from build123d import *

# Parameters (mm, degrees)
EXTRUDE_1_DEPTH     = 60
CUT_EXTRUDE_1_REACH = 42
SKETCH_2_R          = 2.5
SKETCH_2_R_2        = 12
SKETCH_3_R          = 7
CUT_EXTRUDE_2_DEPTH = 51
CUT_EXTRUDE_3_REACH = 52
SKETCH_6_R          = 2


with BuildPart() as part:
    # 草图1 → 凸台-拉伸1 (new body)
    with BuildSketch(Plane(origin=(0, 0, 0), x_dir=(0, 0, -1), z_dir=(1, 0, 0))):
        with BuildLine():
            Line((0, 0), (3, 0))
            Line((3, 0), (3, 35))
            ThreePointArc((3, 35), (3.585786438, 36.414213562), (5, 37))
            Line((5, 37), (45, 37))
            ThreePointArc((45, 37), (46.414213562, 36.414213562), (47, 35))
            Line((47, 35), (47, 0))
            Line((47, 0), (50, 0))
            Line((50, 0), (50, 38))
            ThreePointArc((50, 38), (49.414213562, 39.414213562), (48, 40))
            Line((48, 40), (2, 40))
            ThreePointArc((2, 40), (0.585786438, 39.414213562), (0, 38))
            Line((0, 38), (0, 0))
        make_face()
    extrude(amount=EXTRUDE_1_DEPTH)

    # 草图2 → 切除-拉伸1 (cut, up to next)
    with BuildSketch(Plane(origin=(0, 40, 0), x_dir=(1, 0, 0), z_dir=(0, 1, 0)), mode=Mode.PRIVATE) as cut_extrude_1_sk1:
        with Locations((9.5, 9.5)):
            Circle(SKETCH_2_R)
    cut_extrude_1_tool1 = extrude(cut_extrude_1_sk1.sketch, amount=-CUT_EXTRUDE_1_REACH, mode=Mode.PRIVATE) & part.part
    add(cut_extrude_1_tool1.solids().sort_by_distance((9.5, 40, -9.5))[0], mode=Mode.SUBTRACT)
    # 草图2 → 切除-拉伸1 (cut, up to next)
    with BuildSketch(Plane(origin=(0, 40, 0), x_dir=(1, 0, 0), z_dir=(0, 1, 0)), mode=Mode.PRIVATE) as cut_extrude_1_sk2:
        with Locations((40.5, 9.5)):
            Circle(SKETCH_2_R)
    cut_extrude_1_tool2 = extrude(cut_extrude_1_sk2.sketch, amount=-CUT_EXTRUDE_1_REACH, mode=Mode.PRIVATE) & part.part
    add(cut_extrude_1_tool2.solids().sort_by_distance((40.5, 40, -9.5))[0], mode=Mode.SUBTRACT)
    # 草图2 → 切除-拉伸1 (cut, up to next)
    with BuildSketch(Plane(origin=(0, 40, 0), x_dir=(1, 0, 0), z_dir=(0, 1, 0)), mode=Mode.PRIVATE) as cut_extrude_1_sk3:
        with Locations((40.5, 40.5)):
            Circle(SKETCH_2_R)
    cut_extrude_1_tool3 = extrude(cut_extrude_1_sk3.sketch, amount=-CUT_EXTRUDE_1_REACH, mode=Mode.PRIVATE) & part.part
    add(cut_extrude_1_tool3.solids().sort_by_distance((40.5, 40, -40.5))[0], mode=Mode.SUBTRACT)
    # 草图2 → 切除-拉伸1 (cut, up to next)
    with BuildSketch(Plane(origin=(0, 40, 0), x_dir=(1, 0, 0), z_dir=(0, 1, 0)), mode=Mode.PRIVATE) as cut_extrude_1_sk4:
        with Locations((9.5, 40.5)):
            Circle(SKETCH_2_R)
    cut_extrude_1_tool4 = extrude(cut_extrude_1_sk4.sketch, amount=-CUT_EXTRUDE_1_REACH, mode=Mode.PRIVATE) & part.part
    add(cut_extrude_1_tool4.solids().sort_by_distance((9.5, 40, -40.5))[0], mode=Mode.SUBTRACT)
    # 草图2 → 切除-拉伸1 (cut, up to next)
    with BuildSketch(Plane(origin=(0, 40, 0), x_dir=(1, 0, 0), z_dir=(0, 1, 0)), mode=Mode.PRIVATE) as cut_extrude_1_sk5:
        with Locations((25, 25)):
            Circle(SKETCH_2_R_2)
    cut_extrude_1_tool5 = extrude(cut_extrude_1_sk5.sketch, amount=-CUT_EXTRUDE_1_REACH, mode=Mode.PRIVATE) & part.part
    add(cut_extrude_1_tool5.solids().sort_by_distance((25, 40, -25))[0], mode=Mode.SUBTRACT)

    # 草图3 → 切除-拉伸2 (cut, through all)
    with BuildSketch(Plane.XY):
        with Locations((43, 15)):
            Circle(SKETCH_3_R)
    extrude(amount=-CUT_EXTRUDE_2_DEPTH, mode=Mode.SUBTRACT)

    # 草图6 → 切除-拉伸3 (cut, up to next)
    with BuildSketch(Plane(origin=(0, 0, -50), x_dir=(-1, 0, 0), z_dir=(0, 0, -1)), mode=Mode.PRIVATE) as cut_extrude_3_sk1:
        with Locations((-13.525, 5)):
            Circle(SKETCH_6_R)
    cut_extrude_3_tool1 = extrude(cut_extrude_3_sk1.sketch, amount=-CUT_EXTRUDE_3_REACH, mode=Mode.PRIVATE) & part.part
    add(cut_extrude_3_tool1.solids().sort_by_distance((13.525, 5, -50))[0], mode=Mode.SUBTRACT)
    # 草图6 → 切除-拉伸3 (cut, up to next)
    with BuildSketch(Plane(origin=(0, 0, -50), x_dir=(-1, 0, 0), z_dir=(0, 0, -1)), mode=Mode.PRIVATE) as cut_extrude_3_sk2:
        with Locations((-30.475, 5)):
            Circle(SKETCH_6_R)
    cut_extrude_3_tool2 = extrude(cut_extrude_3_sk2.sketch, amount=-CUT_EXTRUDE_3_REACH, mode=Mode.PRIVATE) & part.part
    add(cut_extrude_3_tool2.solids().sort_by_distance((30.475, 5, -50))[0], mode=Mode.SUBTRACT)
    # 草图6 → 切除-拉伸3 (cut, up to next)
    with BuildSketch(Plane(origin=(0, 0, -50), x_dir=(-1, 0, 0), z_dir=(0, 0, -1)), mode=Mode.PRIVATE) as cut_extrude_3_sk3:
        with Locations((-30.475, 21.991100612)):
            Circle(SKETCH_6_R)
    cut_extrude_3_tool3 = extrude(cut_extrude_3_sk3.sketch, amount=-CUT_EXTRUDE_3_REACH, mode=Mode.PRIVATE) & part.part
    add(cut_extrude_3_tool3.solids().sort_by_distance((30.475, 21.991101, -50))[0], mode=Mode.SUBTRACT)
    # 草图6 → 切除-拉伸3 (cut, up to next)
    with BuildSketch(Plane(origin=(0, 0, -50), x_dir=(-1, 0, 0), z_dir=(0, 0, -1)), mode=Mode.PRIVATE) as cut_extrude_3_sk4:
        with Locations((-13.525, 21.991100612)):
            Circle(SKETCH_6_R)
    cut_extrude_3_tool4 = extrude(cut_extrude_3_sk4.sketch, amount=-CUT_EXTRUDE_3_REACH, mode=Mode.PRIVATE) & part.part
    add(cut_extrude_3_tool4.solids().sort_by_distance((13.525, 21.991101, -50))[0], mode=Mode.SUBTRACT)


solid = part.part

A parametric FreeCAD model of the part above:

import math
import FreeCAD as App
import Part
import Sketcher

V = App.Vector
Q = App.Units.Quantity

doc = App.newDocument("Part")
body = doc.addObject("PartDesign::Body", "Body")

sketch1 = body.newObject("Sketcher::SketchObject", "Sketch")
sketch1.AttachmentSupport = (doc.getObject("YZ_Plane"), [""])
sketch1.MapMode = "FlatFace"
sketch1.addGeometry([
    Part.LineSegment(V(0, 0, 0), V(0, -3, 0)),
    Part.LineSegment(V(0, -3, 0), V(35, -3, 0)),
    Part.ArcOfCircle(Part.Circle(V(35, -5, 0), V(0, 0, 1), 2), math.radians(0), math.radians(90)),
    Part.LineSegment(V(37, -5, 0), V(37, -45, 0)),
    Part.ArcOfCircle(Part.Circle(V(35, -45, 0), V(0, 0, 1), 2), math.radians(-90), math.radians(0)),
    Part.LineSegment(V(35, -47, 0), V(0, -47, 0)),
    Part.LineSegment(V(0, -47, 0), V(0, -50, 0)),
    Part.LineSegment(V(0, -50, 0), V(38, -50, 0)),
    Part.ArcOfCircle(Part.Circle(V(38, -48, 0), V(0, 0, 1), 2), math.radians(-90), math.radians(0)),
    Part.LineSegment(V(40, -48, 0), V(40, -2, 0)),
    Part.ArcOfCircle(Part.Circle(V(38, -2, 0), V(0, 0, 1), 2), math.radians(0), math.radians(90)),
    Part.LineSegment(V(38, 0, 0), V(0, 0, 0)),
], False)
sketch1.addConstraint([
    Sketcher.Constraint("Coincident", 0, 2, 1, 1),
    Sketcher.Constraint("Tangent", 1, 2, 2, 2),
    Sketcher.Constraint("Tangent", 2, 1, 3, 1),
    Sketcher.Constraint("Tangent", 3, 2, 4, 2),
    Sketcher.Constraint("Tangent", 4, 1, 5, 1),
    Sketcher.Constraint("Coincident", 5, 2, 6, 1),
    Sketcher.Constraint("Coincident", 6, 2, 7, 1),
    Sketcher.Constraint("Tangent", 7, 2, 8, 1),
    Sketcher.Constraint("Tangent", 8, 2, 9, 1),
    Sketcher.Constraint("Tangent", 9, 2, 10, 1),
    Sketcher.Constraint("Tangent", 10, 2, 11, 1),
    Sketcher.Constraint("Coincident", 11, 2, 0, 1),
    Sketcher.Constraint("Vertical", 0),
    Sketcher.Constraint("Horizontal", 1),
    Sketcher.Constraint("Vertical", 3),
    Sketcher.Constraint("Horizontal", 5),
    Sketcher.Constraint("Vertical", 6),
    Sketcher.Constraint("Horizontal", 7),
    Sketcher.Constraint("Vertical", 9),
    Sketcher.Constraint("Horizontal", 11),
    Sketcher.Constraint("Coincident", 11, 2, -1, 1),
    Sketcher.Constraint("Equal", 2, 4),
    Sketcher.Constraint("Equal", 4, 8),
    Sketcher.Constraint("Equal", 8, 10),
    Sketcher.Constraint("PointOnObject", 5, 2, -2),
    Sketcher.Constraint("Equal", 0, 6),
    Sketcher.Constraint("Radius", 2, Q("2 mm")),
    Sketcher.Constraint("DistanceX", 1, 1, 1, 2, Q("35 mm")),
    Sketcher.Constraint("DistanceX", 7, 1, 7, 2, Q("38 mm")),
    Sketcher.Constraint("DistanceY", 0, 2, 0, 1, Q("3 mm")),
    Sketcher.Constraint("DistanceY", 3, 2, 3, 1, Q("40 mm")),
])
pad1 = body.newObject("PartDesign::Pad", "Pad")
pad1.Profile = sketch1
pad1.Length = 60

sketch2 = body.newObject("Sketcher::SketchObject", "Sketch001")
sketch2.AttachmentSupport = (doc.getObject("XZ_Plane"), [""])
sketch2.MapMode = "FlatFace"
sketch2.AttachmentOffset = App.Placement(V(0, 0, -40), App.Rotation())
sketch2.addGeometry(Part.Circle(V(9.5, -9.5, 0), V(0, 0, 1), 2.5), False)
sketch2.addConstraint([
    Sketcher.Constraint("Diameter", 0, Q("5 mm")),
    Sketcher.Constraint("DistanceX", -1, 1, 0, 3, Q("9.5 mm")),
    Sketcher.Constraint("DistanceY", 0, 3, -1, 1, Q("9.5 mm")),
])
pocket1 = body.newObject("PartDesign::Pocket", "Pocket")
pocket1.Profile = sketch2
pocket1.Type = "UpToFirst"
pocket1.Reversed = True

sketch3 = body.newObject("Sketcher::SketchObject", "Sketch002")
sketch3.AttachmentSupport = (doc.getObject("XZ_Plane"), [""])
sketch3.MapMode = "FlatFace"
sketch3.AttachmentOffset = App.Placement(V(0, 0, -40), App.Rotation())
sketch3.addGeometry(Part.Circle(V(40.5, -9.5, 0), V(0, 0, 1), 2.5), False)
sketch3.addConstraint([
    Sketcher.Constraint("Diameter", 0, Q("5 mm")),
    Sketcher.Constraint("DistanceX", -1, 1, 0, 3, Q("40.5 mm")),
    Sketcher.Constraint("DistanceY", 0, 3, -1, 1, Q("9.5 mm")),
])
pocket2 = body.newObject("PartDesign::Pocket", "Pocket001")
pocket2.Profile = sketch3
pocket2.Type = "UpToFirst"
pocket2.Reversed = True

sketch4 = body.newObject("Sketcher::SketchObject", "Sketch003")
sketch4.AttachmentSupport = (doc.getObject("XZ_Plane"), [""])
sketch4.MapMode = "FlatFace"
sketch4.AttachmentOffset = App.Placement(V(0, 0, -40), App.Rotation())
sketch4.addGeometry(Part.Circle(V(40.5, -40.5, 0), V(0, 0, 1), 2.5), False)
sketch4.addConstraint([
    Sketcher.Constraint("Diameter", 0, Q("5 mm")),
    Sketcher.Constraint("DistanceX", -1, 1, 0, 3, Q("40.5 mm")),
    Sketcher.Constraint("DistanceY", 0, 3, -1, 1, Q("40.5 mm")),
])
pocket3 = body.newObject("PartDesign::Pocket", "Pocket002")
pocket3.Profile = sketch4
pocket3.Type = "UpToFirst"
pocket3.Reversed = True

sketch5 = body.newObject("Sketcher::SketchObject", "Sketch004")
sketch5.AttachmentSupport = (doc.getObject("XZ_Plane"), [""])
sketch5.MapMode = "FlatFace"
sketch5.AttachmentOffset = App.Placement(V(0, 0, -40), App.Rotation())
sketch5.addGeometry(Part.Circle(V(9.5, -40.5, 0), V(0, 0, 1), 2.5), False)
sketch5.addConstraint([
    Sketcher.Constraint("Diameter", 0, Q("5 mm")),
    Sketcher.Constraint("DistanceX", -1, 1, 0, 3, Q("9.5 mm")),
    Sketcher.Constraint("DistanceY", 0, 3, -1, 1, Q("40.5 mm")),
])
pocket4 = body.newObject("PartDesign::Pocket", "Pocket003")
pocket4.Profile = sketch5
pocket4.Type = "UpToFirst"
pocket4.Reversed = True

sketch6 = body.newObject("Sketcher::SketchObject", "Sketch005")
sketch6.AttachmentSupport = (doc.getObject("XZ_Plane"), [""])
sketch6.MapMode = "FlatFace"
sketch6.AttachmentOffset = App.Placement(V(0, 0, -40), App.Rotation())
sketch6.addGeometry(Part.Circle(V(25, -25, 0), V(0, 0, 1), 12), False)
sketch6.addConstraint([
    Sketcher.Constraint("Diameter", 0, Q("24 mm")),
    Sketcher.Constraint("DistanceX", -1, 1, 0, 3, Q("25 mm")),
    Sketcher.Constraint("DistanceY", 0, 3, -1, 1, Q("25 mm")),
])
pocket5 = body.newObject("PartDesign::Pocket", "Pocket004")
pocket5.Profile = sketch6
pocket5.Type = "UpToFirst"
pocket5.Reversed = True

sketch7 = body.newObject("Sketcher::SketchObject", "Sketch006")
sketch7.AttachmentSupport = (doc.getObject("XY_Plane"), [""])
sketch7.MapMode = "FlatFace"
sketch7.addGeometry(Part.Circle(V(43, 15, 0), V(0, 0, 1), 7), False)
sketch7.addConstraint([
    Sketcher.Constraint("Diameter", 0, Q("14 mm")),
    Sketcher.Constraint("DistanceX", -1, 1, 0, 3, Q("43 mm")),
    Sketcher.Constraint("DistanceY", -1, 1, 0, 3, Q("15 mm")),
])
pocket6 = body.newObject("PartDesign::Pocket", "Pocket005")
pocket6.Profile = sketch7
pocket6.Type = "ThroughAll"

sketch8 = body.newObject("Sketcher::SketchObject", "Sketch007")
sketch8.AttachmentSupport = (doc.getObject("XY_Plane"), [""])
sketch8.MapMode = "FlatFace"
sketch8.AttachmentOffset = App.Placement(V(0, 0, -50), App.Rotation())
sketch8.addGeometry(Part.Circle(V(13.5, 5, 0), V(0, 0, 1), 2), False)
sketch8.addConstraint([
    Sketcher.Constraint("Diameter", 0, Q("4 mm")),
    Sketcher.Constraint("DistanceY", -1, 1, 0, 3, Q("5 mm")),
    Sketcher.Constraint("DistanceX", -1, 1, 0, 3, Q("13.525 mm")),
])
pocket7 = body.newObject("PartDesign::Pocket", "Pocket006")
pocket7.Profile = sketch8
pocket7.Type = "UpToFirst"
pocket7.Reversed = True

sketch9 = body.newObject("Sketcher::SketchObject", "Sketch008")
sketch9.AttachmentSupport = (doc.getObject("XY_Plane"), [""])
sketch9.MapMode = "FlatFace"
sketch9.AttachmentOffset = App.Placement(V(0, 0, -50), App.Rotation())
sketch9.addGeometry(Part.Circle(V(30.5, 5, 0), V(0, 0, 1), 2), False)
sketch9.addConstraint([
    Sketcher.Constraint("Diameter", 0, Q("4 mm")),
    Sketcher.Constraint("DistanceY", -1, 1, 0, 3, Q("5 mm")),
    Sketcher.Constraint("DistanceX", -1, 1, 0, 3, Q("30.475 mm")),
])
pocket8 = body.newObject("PartDesign::Pocket", "Pocket007")
pocket8.Profile = sketch9
pocket8.Type = "UpToFirst"
pocket8.Reversed = True

sketch10 = body.newObject("Sketcher::SketchObject", "Sketch009")
sketch10.AttachmentSupport = (doc.getObject("XY_Plane"), [""])
sketch10.MapMode = "FlatFace"
sketch10.AttachmentOffset = App.Placement(V(0, 0, -50), App.Rotation())
sketch10.addGeometry(Part.Circle(V(30.5, 22, 0), V(0, 0, 1), 2), False)
sketch10.addConstraint([
    Sketcher.Constraint("Diameter", 0, Q("4 mm")),
    Sketcher.Constraint("DistanceX", -1, 1, 0, 3, Q("30.475 mm")),
    Sketcher.Constraint("DistanceY", -1, 1, 0, 3, Q("21.991101 mm")),
])
pocket9 = body.newObject("PartDesign::Pocket", "Pocket008")
pocket9.Profile = sketch10
pocket9.Type = "UpToFirst"
pocket9.Reversed = True

sketch11 = body.newObject("Sketcher::SketchObject", "Sketch010")
sketch11.AttachmentSupport = (doc.getObject("XY_Plane"), [""])
sketch11.MapMode = "FlatFace"
sketch11.AttachmentOffset = App.Placement(V(0, 0, -50), App.Rotation())
sketch11.addGeometry(Part.Circle(V(13.5, 22, 0), V(0, 0, 1), 2), False)
sketch11.addConstraint([
    Sketcher.Constraint("Diameter", 0, Q("4 mm")),
    Sketcher.Constraint("DistanceX", -1, 1, 0, 3, Q("13.525 mm")),
    Sketcher.Constraint("DistanceY", -1, 1, 0, 3, Q("21.991101 mm")),
])
pocket10 = body.newObject("PartDesign::Pocket", "Pocket009")
pocket10.Profile = sketch11
pocket10.Type = "UpToFirst"
pocket10.Reversed = True

doc.recompute()
